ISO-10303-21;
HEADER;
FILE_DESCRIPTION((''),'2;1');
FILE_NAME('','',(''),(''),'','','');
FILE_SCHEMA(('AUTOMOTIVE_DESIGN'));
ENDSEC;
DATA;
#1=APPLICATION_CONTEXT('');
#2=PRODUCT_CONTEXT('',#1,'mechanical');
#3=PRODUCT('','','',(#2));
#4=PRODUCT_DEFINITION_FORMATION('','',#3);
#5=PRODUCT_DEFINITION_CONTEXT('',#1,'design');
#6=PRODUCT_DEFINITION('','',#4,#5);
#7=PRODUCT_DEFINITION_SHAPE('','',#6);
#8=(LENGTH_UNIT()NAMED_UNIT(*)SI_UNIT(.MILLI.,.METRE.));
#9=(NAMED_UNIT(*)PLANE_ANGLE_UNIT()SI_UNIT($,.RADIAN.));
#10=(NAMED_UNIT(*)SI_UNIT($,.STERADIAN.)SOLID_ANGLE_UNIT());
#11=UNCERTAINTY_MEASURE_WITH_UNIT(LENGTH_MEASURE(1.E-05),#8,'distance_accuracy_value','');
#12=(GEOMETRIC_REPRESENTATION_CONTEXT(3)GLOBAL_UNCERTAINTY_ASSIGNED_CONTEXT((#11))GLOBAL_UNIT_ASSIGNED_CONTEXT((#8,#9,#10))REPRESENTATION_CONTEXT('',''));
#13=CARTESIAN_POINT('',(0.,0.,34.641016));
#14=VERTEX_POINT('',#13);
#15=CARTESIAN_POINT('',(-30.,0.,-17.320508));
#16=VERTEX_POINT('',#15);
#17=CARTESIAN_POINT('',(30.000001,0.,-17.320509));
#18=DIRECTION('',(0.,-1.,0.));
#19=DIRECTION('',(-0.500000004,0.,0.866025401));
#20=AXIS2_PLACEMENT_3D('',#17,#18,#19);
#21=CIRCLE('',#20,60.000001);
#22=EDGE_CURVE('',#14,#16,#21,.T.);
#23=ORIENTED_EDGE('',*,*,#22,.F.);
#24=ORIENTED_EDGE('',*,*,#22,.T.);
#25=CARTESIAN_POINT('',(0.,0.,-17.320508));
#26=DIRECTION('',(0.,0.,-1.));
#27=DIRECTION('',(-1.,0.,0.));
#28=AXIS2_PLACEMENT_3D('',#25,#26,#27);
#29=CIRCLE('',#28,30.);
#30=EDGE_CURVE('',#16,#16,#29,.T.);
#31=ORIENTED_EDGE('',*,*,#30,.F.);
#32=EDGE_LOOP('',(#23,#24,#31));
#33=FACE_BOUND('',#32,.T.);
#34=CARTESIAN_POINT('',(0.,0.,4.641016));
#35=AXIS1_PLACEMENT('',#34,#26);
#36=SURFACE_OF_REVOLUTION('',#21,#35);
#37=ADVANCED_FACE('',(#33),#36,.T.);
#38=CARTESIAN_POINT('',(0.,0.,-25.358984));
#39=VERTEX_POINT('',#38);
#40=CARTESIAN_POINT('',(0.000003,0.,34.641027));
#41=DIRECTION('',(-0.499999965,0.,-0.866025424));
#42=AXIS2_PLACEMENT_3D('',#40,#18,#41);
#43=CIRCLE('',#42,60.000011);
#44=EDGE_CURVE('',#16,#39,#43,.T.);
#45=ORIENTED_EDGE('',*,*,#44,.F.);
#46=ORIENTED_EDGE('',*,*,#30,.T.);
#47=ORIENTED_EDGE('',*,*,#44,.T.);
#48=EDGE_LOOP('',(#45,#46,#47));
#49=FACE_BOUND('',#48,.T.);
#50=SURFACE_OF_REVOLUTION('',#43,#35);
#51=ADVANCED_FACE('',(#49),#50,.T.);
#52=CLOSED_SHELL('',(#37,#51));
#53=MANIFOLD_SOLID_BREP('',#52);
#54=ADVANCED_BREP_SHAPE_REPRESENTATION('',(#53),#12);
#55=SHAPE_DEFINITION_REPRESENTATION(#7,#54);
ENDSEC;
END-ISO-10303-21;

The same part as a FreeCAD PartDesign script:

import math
import FreeCAD as App
import Part
import Sketcher

V = App.Vector
Q = App.Units.Quantity

doc = App.newDocument("Part")
body = doc.addObject("PartDesign::Body", "Body")

# Sketch on XZ plane
sketch1 = doc.addObject("Sketcher::SketchObject", "Sketch")
body.addObject(sketch1)
sketch1.AttachmentSupport = (doc.XZ_Plane, [""])
sketch1.MapMode = "FlatFace"
sketch1.addGeometry(Part.LineSegment(V(0, -25, 0), V(0, 35, 0)), False)
sketch1.addGeometry(Part.ArcOfCircle(Part.Circle(V(30, -17, 0), V(0, 0, 1), 60), math.radians(120), math.radians(180)), False)
sketch1.addGeometry(Part.ArcOfCircle(Part.Circle(V(0, 35, 0), V(0, 0, 1), 60), math.radians(-120), math.radians(-90)), False)
sketch1.addConstraint(Sketcher.Constraint("Coincident", 0, 2, 1, 1))
sketch1.addConstraint(Sketcher.Constraint("Coincident", 1, 2, 2, 1))
sketch1.addConstraint(Sketcher.Constraint("Coincident", 2, 2, 0, 1))
sketch1.addConstraint(Sketcher.Constraint("Vertical", 0))
sketch1.addConstraint(Sketcher.Constraint("PointOnObject", 0, 2, -2))
sketch1.addConstraint(Sketcher.Constraint("Radius", 1, Q("60.000001 mm")))
sketch1.addConstraint(Sketcher.Constraint("DistanceY", 0, 1, 0, 2, Q("60 mm")))
sketch1.addConstraint(Sketcher.Constraint("DistanceX", -1, 1, 1, 3, Q("30.000001 mm")))
sketch1.addConstraint(Sketcher.Constraint("Radius", 2, Q("60.000011 mm")))
sketch1.addConstraint(Sketcher.Constraint("DistanceY", 1, 3, -1, 1, Q("17.320509 mm")))
sketch1.addConstraint(Sketcher.Constraint("DistanceY", 1, 2, -1, 1, Q("17.320508 mm")))
revolution = doc.addObject("PartDesign::Revolution", "Revolution")
body.addObject(revolution)
revolution.Profile = sketch1
revolution.ReferenceAxis = (sketch1, ["V_Axis"])
revolution.Angle = 360

doc.recompute()
